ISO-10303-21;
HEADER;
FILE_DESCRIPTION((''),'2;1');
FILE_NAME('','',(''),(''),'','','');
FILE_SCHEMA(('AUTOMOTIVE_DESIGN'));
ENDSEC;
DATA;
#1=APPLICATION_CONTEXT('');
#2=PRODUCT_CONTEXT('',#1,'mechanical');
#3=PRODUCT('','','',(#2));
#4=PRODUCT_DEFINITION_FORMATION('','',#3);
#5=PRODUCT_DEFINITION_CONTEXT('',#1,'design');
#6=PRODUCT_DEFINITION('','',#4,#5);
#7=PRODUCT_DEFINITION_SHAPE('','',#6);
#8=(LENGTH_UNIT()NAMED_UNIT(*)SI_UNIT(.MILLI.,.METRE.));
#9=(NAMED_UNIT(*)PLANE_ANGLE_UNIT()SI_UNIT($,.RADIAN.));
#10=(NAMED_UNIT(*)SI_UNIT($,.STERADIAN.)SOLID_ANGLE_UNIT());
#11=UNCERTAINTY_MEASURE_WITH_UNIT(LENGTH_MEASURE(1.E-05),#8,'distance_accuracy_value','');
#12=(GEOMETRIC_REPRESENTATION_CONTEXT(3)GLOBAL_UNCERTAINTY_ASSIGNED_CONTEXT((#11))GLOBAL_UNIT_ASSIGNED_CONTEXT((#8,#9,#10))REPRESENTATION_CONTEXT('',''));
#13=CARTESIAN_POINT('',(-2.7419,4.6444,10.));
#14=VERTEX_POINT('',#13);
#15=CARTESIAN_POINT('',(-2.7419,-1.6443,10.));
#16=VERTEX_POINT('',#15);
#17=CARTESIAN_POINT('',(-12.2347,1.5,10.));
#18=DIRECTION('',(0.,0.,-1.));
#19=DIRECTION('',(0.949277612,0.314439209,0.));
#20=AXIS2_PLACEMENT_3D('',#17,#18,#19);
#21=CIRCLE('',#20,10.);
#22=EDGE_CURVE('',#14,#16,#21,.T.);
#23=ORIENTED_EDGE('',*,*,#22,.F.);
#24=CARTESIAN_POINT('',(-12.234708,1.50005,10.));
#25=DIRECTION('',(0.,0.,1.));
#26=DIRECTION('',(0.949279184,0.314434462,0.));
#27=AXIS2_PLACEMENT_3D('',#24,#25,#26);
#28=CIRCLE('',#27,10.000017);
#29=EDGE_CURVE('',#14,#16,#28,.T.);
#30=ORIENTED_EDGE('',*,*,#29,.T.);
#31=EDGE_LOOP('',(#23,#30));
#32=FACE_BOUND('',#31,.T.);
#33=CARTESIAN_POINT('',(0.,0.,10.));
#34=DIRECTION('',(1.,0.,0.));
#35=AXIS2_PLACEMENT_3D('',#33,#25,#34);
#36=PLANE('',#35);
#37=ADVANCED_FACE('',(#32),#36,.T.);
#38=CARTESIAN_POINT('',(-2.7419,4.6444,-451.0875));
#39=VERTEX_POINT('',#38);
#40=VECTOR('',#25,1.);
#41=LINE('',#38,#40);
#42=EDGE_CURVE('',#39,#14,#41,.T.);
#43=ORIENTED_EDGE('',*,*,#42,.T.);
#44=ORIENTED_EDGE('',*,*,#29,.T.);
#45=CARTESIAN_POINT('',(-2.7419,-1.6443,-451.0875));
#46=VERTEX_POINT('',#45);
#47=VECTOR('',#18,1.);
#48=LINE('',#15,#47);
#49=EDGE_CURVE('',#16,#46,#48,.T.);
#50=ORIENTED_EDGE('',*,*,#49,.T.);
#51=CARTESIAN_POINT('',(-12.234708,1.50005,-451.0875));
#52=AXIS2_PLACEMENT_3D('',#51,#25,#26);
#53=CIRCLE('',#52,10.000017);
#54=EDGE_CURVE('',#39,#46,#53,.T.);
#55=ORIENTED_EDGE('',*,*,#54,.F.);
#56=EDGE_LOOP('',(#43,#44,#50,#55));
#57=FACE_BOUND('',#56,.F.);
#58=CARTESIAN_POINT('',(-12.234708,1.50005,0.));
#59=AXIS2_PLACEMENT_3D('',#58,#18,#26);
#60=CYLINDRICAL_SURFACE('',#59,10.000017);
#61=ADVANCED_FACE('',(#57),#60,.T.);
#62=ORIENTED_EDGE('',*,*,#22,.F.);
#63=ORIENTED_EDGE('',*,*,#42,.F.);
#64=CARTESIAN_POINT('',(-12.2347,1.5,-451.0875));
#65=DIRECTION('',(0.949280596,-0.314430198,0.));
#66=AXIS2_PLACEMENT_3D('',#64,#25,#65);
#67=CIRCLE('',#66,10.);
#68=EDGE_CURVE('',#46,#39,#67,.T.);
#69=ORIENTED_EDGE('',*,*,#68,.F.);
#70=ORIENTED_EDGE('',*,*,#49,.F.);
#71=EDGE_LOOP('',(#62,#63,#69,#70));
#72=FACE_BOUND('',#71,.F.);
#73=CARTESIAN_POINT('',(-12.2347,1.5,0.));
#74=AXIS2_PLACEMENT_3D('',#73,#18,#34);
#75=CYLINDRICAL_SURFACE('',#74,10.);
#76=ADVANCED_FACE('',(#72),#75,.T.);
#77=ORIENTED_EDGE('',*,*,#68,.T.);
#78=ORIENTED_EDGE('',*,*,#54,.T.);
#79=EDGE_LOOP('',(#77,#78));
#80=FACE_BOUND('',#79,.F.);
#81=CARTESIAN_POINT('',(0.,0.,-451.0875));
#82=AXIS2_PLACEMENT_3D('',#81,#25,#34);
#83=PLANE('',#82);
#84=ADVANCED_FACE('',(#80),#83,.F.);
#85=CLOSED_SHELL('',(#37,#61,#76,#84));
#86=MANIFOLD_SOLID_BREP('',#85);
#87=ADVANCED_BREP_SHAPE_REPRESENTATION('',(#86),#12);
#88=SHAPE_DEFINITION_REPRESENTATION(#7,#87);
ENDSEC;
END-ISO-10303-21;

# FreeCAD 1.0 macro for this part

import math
import FreeCAD as App
import Part
import Sketcher
Q = App.Units.Quantity

doc = App.newDocument("Part")
body = doc.addObject("PartDesign::Body", "Body")

# Sketch on XY plane
sketch1 = doc.addObject("Sketcher::SketchObject", "Sketch")
body.addObject(sketch1)
sketch1.AttachmentSupport = (doc.XY_Plane, [""])
sketch1.MapMode = "FlatFace"
sketch1.addGeometry([
    Part.ArcOfCircle(Part.Circle(App.Vector(-12, 2, 0), App.Vector(0, 0, 1), 10), math.radians(-18), math.radians(18)),
    Part.ArcOfCircle(Part.Circle(App.Vector(-12, 2, 0), App.Vector(0, 0, 1), 10), math.radians(18), math.radians(342)),
], False)
sketch1.addConstraint([
    Sketcher.Constraint("Tangent", 0, 1, 1, 2),
    Sketcher.Constraint("Coincident", 1, 1, 0, 2),
    Sketcher.Constraint("Vertical", 0, 1, 1, 1),
    Sketcher.Constraint("Radius", 0, Q("10 mm")),
    Sketcher.Constraint("DistanceY", -1, 1, 0, 3, Q("1.5 mm")),
    Sketcher.Constraint("DistanceX", 0, 1, -1, 1, Q("2.742 mm")),
    Sketcher.Constraint("DistanceX", 0, 3, -1, 1, Q("12.2347 mm")),
])
pad1 = doc.addObject("PartDesign::Pad", "Pad")
body.addObject(pad1)
pad1.Profile = sketch1
pad1.Type = "TwoLengths"
pad1.Length = 10
pad1.Length2 = 451.0875

doc.recompute()
